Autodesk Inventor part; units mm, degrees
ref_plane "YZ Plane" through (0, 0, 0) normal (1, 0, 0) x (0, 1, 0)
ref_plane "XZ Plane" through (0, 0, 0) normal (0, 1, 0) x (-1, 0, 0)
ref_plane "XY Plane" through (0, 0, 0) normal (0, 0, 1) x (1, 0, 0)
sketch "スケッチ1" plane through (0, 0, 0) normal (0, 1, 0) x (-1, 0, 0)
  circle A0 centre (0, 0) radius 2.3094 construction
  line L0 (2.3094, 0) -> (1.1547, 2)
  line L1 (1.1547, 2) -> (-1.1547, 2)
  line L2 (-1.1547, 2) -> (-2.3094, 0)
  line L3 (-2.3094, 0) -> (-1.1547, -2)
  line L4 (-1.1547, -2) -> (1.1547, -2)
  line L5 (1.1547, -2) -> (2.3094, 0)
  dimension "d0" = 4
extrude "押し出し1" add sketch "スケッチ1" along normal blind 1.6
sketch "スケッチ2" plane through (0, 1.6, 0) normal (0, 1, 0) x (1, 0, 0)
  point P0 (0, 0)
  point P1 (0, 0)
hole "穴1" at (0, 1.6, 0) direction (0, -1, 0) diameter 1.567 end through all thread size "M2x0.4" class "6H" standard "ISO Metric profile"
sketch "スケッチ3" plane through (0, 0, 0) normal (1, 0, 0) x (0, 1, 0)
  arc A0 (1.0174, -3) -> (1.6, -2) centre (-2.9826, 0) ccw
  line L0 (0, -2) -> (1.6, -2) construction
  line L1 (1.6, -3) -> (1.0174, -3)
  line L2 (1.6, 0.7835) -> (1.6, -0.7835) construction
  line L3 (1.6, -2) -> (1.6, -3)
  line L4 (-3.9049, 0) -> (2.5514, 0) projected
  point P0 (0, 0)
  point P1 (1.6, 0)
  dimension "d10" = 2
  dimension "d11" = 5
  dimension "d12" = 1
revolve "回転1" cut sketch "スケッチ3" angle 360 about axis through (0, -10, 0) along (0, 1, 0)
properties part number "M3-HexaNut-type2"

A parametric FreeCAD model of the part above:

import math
import FreeCAD as App
import Part
import Sketcher

V = App.Vector
Q = App.Units.Quantity


def add_polygon(sketch, points):
    """Adds a closed chain of lines whose ends are joined by coincident constraints."""
    first, n = sketch.GeometryCount, len(points)
    for a, b in zip(points, points[1:] + points[:1]):
        sketch.addGeometry(Part.LineSegment(App.Vector(*a, 0), App.Vector(*b, 0)), False)
    for i in range(n):
        sketch.addConstraint(Sketcher.Constraint("Coincident", first + i, 2, first + (i + 1) % n, 1))

doc = App.newDocument("Part")
body = doc.addObject("PartDesign::Body", "Body")

# Sketch on XZ plane
sketch1 = body.newObject("Sketcher::SketchObject", "Sketch")
sketch1.AttachmentSupport = (doc.getObject("XZ_Plane"), [""])
sketch1.MapMode = "FlatFace"
add_polygon(sketch1, [(-1.2, -2), (-2.3, 0), (-1.2, 2), (1.2, 2), (2.3, 0), (1.2, -2)])  # lines 0-5
sketch1.addConstraint([
    Sketcher.Constraint("Horizontal", 2),
    Sketcher.Constraint("Horizontal", 5),
    Sketcher.Constraint("Symmetric", 0, 2, 3, 2, -1, 1),
    Sketcher.Constraint("Symmetric", 1, 2, 4, 2, -1, 1),
    Sketcher.Constraint("PointOnObject", 0, 2, -1),
    Sketcher.Constraint("Parallel", 0, 3),
    Sketcher.Constraint("Vertical", 2, 2, 4, 2),
    Sketcher.Constraint("DistanceY", 4, 2, 2, 2, Q("4 mm")),
    Sketcher.Constraint("Angle", 0, Q("120 deg")),
    Sketcher.Constraint("DistanceX", 2, 1, 2, 2, Q("2.3094 mm")),
])
pad1 = body.newObject("PartDesign::Pad", "Pad")
pad1.Profile = sketch1
pad1.Length = 1.6
pad1.Reversed = True

# Sketch on XZ plane
sketch2 = body.newObject("Sketcher::SketchObject", "Sketch001")
sketch2.AttachmentSupport = (doc.getObject("XZ_Plane"), [""])
sketch2.MapMode = "FlatFace"
sketch2.AttachmentOffset = App.Placement(V(0, 0, -1.6), App.Rotation())
sketch2.addGeometry(Part.Circle(V(0, 0, 0), V(0, 0, 1), 0.8), False)
sketch2.addConstraint([
    Sketcher.Constraint("Coincident", 0, 3, -1, 1),
    Sketcher.Constraint("Diameter", 0, Q("1.567 mm")),
])
doc.recompute()
hole = body.newObject("PartDesign::Hole", "Hole")
hole.Profile = sketch2
hole.ThreadType = "None"
hole.Diameter = 1.567
hole.DepthType = "ThroughAll"
hole.Reversed = True

# Sketch on YZ plane
sketch3 = body.newObject("Sketcher::SketchObject", "Sketch002")
sketch3.AttachmentSupport = (doc.getObject("YZ_Plane"), [""])
sketch3.MapMode = "FlatFace"
sketch3.addGeometry([
    Part.ArcOfCircle(Part.Circle(V(-3, 0, 0), V(0, 0, 1), 5), math.radians(-36.87), math.radians(-23.58)),
    Part.LineSegment(V(1, -3, 0), V(1.6, -3, 0)),
    Part.LineSegment(V(1.6, -3, 0), V(1.6, -2, 0)),
], False)
sketch3.addConstraint([
    Sketcher.Constraint("Coincident", 0, 1, 1, 1),
    Sketcher.Constraint("Coincident", 1, 2, 2, 1),
    Sketcher.Constraint("Coincident", 2, 2, 0, 2),
    Sketcher.Constraint("Horizontal", 1),
    Sketcher.Constraint("Vertical", 2),
    Sketcher.Constraint("DistanceY", 2, 1, 2, 2, Q("1 mm")),
    Sketcher.Constraint("DistanceY", 2, 2, -1, 1, Q("2 mm")),
    Sketcher.Constraint("DistanceX", -1, 1, 1, 2, Q("1.6 mm")),
    Sketcher.Constraint("Radius", 0, Q("5.0017 mm")),
    Sketcher.Constraint("DistanceX", 1, 1, 1, 2, Q("0.5826 mm")),
])
groove = body.newObject("PartDesign::Groove", "Groove")
groove.Profile = sketch3
groove.ReferenceAxis = (sketch3, ["H_Axis"])
groove.Angle = 360

doc.recompute()
